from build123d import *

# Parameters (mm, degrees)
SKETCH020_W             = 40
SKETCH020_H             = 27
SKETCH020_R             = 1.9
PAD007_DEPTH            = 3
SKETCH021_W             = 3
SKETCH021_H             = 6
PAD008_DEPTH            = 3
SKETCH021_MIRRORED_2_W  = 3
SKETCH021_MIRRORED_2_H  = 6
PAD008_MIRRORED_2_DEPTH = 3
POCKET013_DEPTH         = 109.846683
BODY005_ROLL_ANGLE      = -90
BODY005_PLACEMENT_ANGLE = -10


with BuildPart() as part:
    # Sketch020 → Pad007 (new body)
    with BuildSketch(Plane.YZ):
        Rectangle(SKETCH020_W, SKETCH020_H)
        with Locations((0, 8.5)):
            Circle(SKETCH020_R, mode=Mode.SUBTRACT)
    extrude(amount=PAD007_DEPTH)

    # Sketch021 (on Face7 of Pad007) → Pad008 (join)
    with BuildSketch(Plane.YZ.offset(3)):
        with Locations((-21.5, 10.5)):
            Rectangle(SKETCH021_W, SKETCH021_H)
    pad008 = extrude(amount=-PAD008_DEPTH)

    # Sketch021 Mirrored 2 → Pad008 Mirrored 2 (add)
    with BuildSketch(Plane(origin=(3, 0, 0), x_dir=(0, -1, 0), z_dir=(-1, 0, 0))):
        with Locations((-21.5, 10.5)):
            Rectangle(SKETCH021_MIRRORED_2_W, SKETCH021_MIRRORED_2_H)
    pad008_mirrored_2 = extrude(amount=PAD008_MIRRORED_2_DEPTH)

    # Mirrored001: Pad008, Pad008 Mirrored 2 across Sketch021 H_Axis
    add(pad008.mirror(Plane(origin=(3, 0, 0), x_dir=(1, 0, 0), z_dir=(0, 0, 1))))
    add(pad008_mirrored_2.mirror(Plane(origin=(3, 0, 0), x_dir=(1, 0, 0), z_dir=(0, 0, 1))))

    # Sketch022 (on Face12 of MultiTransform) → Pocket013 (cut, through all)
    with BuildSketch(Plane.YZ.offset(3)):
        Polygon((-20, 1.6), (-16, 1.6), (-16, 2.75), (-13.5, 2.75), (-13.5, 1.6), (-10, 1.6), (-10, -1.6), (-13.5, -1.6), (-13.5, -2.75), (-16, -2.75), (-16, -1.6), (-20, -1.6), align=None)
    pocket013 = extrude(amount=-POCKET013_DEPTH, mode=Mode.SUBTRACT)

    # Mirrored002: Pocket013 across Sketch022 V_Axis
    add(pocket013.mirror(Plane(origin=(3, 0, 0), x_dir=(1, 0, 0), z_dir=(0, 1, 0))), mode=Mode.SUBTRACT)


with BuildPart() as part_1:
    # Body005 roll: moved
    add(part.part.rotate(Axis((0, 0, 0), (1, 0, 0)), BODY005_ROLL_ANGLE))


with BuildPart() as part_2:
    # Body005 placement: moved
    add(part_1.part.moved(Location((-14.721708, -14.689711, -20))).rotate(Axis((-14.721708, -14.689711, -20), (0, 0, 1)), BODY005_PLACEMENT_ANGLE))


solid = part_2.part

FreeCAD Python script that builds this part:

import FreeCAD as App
import Part
import Sketcher

V = App.Vector

doc = App.newDocument("Part")
body = doc.addObject("PartDesign::Body", "Body")

# Sketch on YZ plane
sketch1 = doc.addObject("Sketcher::SketchObject", "Sketch")
body.addObject(sketch1)
sketch1.AttachmentSupport = (doc.YZ_Plane, [""])
sketch1.MapMode = "FlatFace"
sketch1.addGeometry([
    Part.LineSegment(V(-20, 13.5, 0), V(-20, -13.5, 0)),  # 0
    Part.LineSegment(V(-20, -13.5, 0), V(20, -13.5, 0)),  # 1
    Part.LineSegment(V(20, -13.5, 0), V(20, 13.5, 0)),  # 2
    Part.LineSegment(V(20, 13.5, 0), V(-20, 13.5, 0)),  # 3
    Part.Circle(V(0, 8.5, 0), V(0, 0, 1), 1.9),  # 4
], False)
sketch1.addConstraint([
    Sketcher.Constraint("Coincident", 0, 2, 1, 1),
    Sketcher.Constraint("Coincident", 1, 2, 2, 1),
    Sketcher.Constraint("Coincident", 2, 2, 3, 1),
    Sketcher.Constraint("Coincident", 3, 2, 0, 1),
    Sketcher.Constraint("Vertical", 0),
    Sketcher.Constraint("Horizontal", 1),
    Sketcher.Constraint("Vertical", 2),
    Sketcher.Constraint("Horizontal", 3),
    Sketcher.Constraint("Symmetric", 0, 2, 2, 2, -1, 1),
    Sketcher.Constraint("PointOnObject", 4, 3, -2),
    Sketcher.Constraint("Diameter", 4, 3.8),
    Sketcher.Constraint("DistanceX", 1, 1, 1, 2, 40.0),
    Sketcher.Constraint("DistanceY", 0, 2, 0, 1, 27.0),
    Sketcher.Constraint("DistanceY", 0, 2, 4, 3, 22.0),
])
pad1 = doc.addObject("PartDesign::Pad", "Pad")
body.addObject(pad1)
pad1.Profile = sketch1
pad1.Length = 3

# Sketch on YZ plane
sketch2 = doc.addObject("Sketcher::SketchObject", "Sketch001")
body.addObject(sketch2)
sketch2.AttachmentSupport = (doc.YZ_Plane, [""])
sketch2.MapMode = "FlatFace"
sketch2.AttachmentOffset = App.Placement(V(0, 0, 3), App.Rotation())
sketch2.addGeometry([
    Part.LineSegment(V(-23, 13.5, 0), V(-23, 7.5, 0)),
    Part.LineSegment(V(-23, 7.5, 0), V(-20, 7.5, 0)),
    Part.LineSegment(V(-20, 7.5, 0), V(-20, 13.5, 0)),
    Part.LineSegment(V(-20, 13.5, 0), V(-23, 13.5, 0)),
], False)
sketch2.addConstraint([
    Sketcher.Constraint("Coincident", 0, 2, 1, 1),
    Sketcher.Constraint("Coincident", 1, 2, 2, 1),
    Sketcher.Constraint("Coincident", 2, 2, 3, 1),
    Sketcher.Constraint("Coincident", 3, 2, 0, 1),
    Sketcher.Constraint("Vertical", 0),
    Sketcher.Constraint("Horizontal", 1),
    Sketcher.Constraint("Vertical", 2),
    Sketcher.Constraint("Horizontal", 3),
    Sketcher.Constraint("DistanceX", 1, 1, 1, 2, 3.0),
    Sketcher.Constraint("DistanceY", 0, 2, 0, 1, 6.0),
    Sketcher.Constraint("DistanceX", 0, 2, -1, 1, 23.0),
    Sketcher.Constraint("DistanceY", -1, 1, 0, 2, 7.5),
])
pad2 = doc.addObject("PartDesign::Pad", "Pad001")
body.addObject(pad2)
pad2.Profile = sketch2
pad2.Length = 3
pad2.Reversed = True

# Sketch on YZ plane
sketch3 = doc.addObject("Sketcher::SketchObject", "Sketch002")
body.addObject(sketch3)
sketch3.AttachmentSupport = (doc.YZ_Plane, [""])
sketch3.MapMode = "FlatFace"
sketch3.AttachmentOffset = App.Placement(V(0, 0, 3), App.Rotation())
sketch3.addGeometry([
    Part.LineSegment(V(23, 13.5, 0), V(23, 7.5, 0)),
    Part.LineSegment(V(23, 7.5, 0), V(20, 7.5, 0)),
    Part.LineSegment(V(20, 7.5, 0), V(20, 13.5, 0)),
    Part.LineSegment(V(20, 13.5, 0), V(23, 13.5, 0)),
], False)
sketch3.addConstraint([
    Sketcher.Constraint("Coincident", 0, 2, 1, 1),
    Sketcher.Constraint("Coincident", 1, 2, 2, 1),
    Sketcher.Constraint("Coincident", 2, 2, 3, 1),
    Sketcher.Constraint("Coincident", 3, 2, 0, 1),
    Sketcher.Constraint("Vertical", 0),
    Sketcher.Constraint("Horizontal", 1),
    Sketcher.Constraint("Vertical", 2),
    Sketcher.Constraint("Horizontal", 3),
    Sketcher.Constraint("DistanceX", 1, 2, 1, 1, 3.0),
    Sketcher.Constraint("DistanceY", 0, 2, 0, 1, 6.0),
    Sketcher.Constraint("DistanceX", -1, 1, 0, 2, 23.0),
    Sketcher.Constraint("DistanceY", -1, 1, 0, 2, 7.5),
])
pad3 = doc.addObject("PartDesign::Pad", "Pad002")
body.addObject(pad3)
pad3.Profile = sketch3
pad3.Length = 3
pad3.Reversed = True
doc.recompute()

mirrored = doc.addObject("PartDesign::Mirrored", "Mirrored")
body.addObject(mirrored)
mirrored.Originals = [pad2, pad3]
mirrored.MirrorPlane = (doc.XY_Plane, [""])
body.Tip = mirrored

# Sketch on YZ plane
sketch4 = doc.addObject("Sketcher::SketchObject", "Sketch003")
body.addObject(sketch4)
sketch4.AttachmentSupport = (doc.YZ_Plane, [""])
sketch4.MapMode = "FlatFace"
sketch4.AttachmentOffset = App.Placement(V(0, 0, 3), App.Rotation())
sketch4.addGeometry([
    Part.LineSegment(V(-16, 1.6, 0), V(-20, 1.6, 0)),  # 0
    Part.LineSegment(V(-20, 1.6, 0), V(-20, -1.6, 0)),  # 1
    Part.LineSegment(V(-20, -1.6, 0), V(-16, -1.6, 0)),  # 2
    Part.LineSegment(V(-16, -1.6, 0), V(-16, -2.8, 0)),  # 3
    Part.LineSegment(V(-16, -2.8, 0), V(-13.5, -2.8, 0)),  # 4
    Part.LineSegment(V(-13.5, -2.8, 0), V(-13.5, -1.6, 0)),  # 5
    Part.LineSegment(V(-13.5, -1.6, 0), V(-10, -1.6, 0)),  # 6
    Part.LineSegment(V(-10, -1.6, 0), V(-10, 1.6, 0)),  # 7
    Part.LineSegment(V(-10, 1.6, 0), V(-13.5, 1.6, 0)),  # 8
    Part.LineSegment(V(-13.5, 1.6, 0), V(-13.5, 2.8, 0)),  # 9
    Part.LineSegment(V(-13.5, 2.8, 0), V(-16, 2.8, 0)),  # 10
    Part.LineSegment(V(-16, 2.8, 0), V(-16, 1.6, 0)),  # 11
], False)
sketch4.addConstraint([
    Sketcher.Constraint("Coincident", 0, 2, 1, 1),
    Sketcher.Constraint("Coincident", 1, 2, 2, 1),
    Sketcher.Constraint("Coincident", 2, 2, 3, 1),
    Sketcher.Constraint("Coincident", 3, 2, 4, 1),
    Sketcher.Constraint("Coincident", 4, 2, 5, 1),
    Sketcher.Constraint("Coincident", 5, 2, 6, 1),
    Sketcher.Constraint("Coincident", 6, 2, 7, 1),
    Sketcher.Constraint("Coincident", 7, 2, 8, 1),
    Sketcher.Constraint("Coincident", 8, 2, 9, 1),
    Sketcher.Constraint("Coincident", 9, 2, 10, 1),
    Sketcher.Constraint("Coincident", 10, 2, 11, 1),
    Sketcher.Constraint("Coincident", 11, 2, 0, 1),
    Sketcher.Constraint("Horizontal", 0),
    Sketcher.Constraint("Vertical", 1),
    Sketcher.Constraint("Horizontal", 2),
    Sketcher.Constraint("Vertical", 3),
    Sketcher.Constraint("Horizontal", 4),
    Sketcher.Constraint("Vertical", 5),
    Sketcher.Constraint("Horizontal", 6),
    Sketcher.Constraint("Vertical", 7),
    Sketcher.Constraint("Horizontal", 8),
    Sketcher.Constraint("Vertical", 9),
    Sketcher.Constraint("Horizontal", 10),
    Sketcher.Constraint("Vertical", 11),
    Sketcher.Constraint("Symmetric", 5, 2, 8, 2, -1),
    Sketcher.Constraint("Symmetric", 3, 2, 10, 2, -1),
    Sketcher.Constraint("Horizontal", 2, 2, 5, 2),
    Sketcher.Constraint("Horizontal", 0, 2, 7, 2),
    Sketcher.Constraint("DistanceX", 0, 2, 0, 1, 4.0),
    Sketcher.Constraint("DistanceX", 4, 1, 4, 2, 2.5),
    Sketcher.Constraint("DistanceX", 6, 1, 6, 2, 3.5),
    Sketcher.Constraint("DistanceY", 1, 2, 1, 1, 3.2),
    Sketcher.Constraint("DistanceX", 0, 2, -1, 1, 20.0),
    Sketcher.Constraint("DistanceY", 3, 2, 3, 1, 1.15),
])
pocket1 = doc.addObject("PartDesign::Pocket", "Pocket")
body.addObject(pocket1)
pocket1.Profile = sketch4
pocket1.Type = "ThroughAll"
doc.recompute()

mirrored2 = doc.addObject("PartDesign::Mirrored", "Mirrored001")
body.addObject(mirrored2)
mirrored2.Originals = [pocket1]
mirrored2.MirrorPlane = (doc.XZ_Plane, [""])
body.Tip = mirrored2
body2 = doc.addObject("PartDesign::Body", "Body001")
doc.recompute()

body.Placement = App.Placement(V(0, 0, 0), App.Rotation(V(1, 0, 0), 270))
boolean = doc.addObject("PartDesign::Boolean", "Boolean")
body2.addObject(boolean)
boolean.Type = "Fuse"
boolean.addObjects([body])
body3 = doc.addObject("PartDesign::Body", "Body002")
doc.recompute()

body2.Placement = App.Placement(V(-14.721708, -14.689711, -20), App.Rotation(V(0, 0, 1), 350))
boolean2 = doc.addObject("PartDesign::Boolean", "Boolean001")
body3.addObject(boolean2)
boolean2.Type = "Fuse"
boolean2.addObjects([body2])

doc.recompute()
